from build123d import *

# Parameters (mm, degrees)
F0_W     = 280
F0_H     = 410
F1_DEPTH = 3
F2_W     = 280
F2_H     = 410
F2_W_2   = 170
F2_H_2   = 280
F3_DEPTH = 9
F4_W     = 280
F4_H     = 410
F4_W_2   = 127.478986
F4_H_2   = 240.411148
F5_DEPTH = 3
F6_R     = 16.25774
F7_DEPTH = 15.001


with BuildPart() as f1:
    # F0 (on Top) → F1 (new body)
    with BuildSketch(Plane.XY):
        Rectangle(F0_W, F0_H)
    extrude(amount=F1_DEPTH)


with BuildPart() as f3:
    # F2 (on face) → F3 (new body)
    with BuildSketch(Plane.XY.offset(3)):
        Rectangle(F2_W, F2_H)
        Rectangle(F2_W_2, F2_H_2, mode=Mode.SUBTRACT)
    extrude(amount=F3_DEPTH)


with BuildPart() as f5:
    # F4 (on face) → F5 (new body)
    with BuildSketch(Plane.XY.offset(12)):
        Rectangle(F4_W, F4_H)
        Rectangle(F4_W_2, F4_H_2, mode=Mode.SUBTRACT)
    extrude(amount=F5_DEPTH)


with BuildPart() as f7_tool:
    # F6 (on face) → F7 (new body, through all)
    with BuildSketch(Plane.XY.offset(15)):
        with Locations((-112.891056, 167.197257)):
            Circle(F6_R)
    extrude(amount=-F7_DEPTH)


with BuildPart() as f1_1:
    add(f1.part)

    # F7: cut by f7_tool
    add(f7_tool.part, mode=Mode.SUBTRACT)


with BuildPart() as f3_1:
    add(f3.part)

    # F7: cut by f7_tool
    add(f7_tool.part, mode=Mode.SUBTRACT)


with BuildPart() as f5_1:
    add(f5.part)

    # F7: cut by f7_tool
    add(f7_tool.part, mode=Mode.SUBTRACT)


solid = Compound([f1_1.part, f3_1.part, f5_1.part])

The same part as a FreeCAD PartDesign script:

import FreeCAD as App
import Part
import Sketcher
from FreeCAD import Vector
Q = App.Units.Quantity

doc = App.newDocument("Part")
body = doc.addObject("PartDesign::Body", "Body")

sketch1 = body.newObject("Sketcher::SketchObject", "Sketch")
sketch1.AttachmentSupport = (doc.getObject("XY_Plane"), [""])
sketch1.MapMode = "FlatFace"
sketch1.addGeometry(Part.LineSegment(Vector(-140, 205, 0), Vector(-140, -205, 0)), False)
sketch1.addGeometry(Part.LineSegment(Vector(-140, -205, 0), Vector(140, -205, 0)), False)
sketch1.addGeometry(Part.LineSegment(Vector(140, -205, 0), Vector(140, 205, 0)), False)
sketch1.addGeometry(Part.LineSegment(Vector(140, 205, 0), Vector(-140, 205, 0)), False)
sketch1.addConstraint(Sketcher.Constraint("Coincident", 0, 2, 1, 1))
sketch1.addConstraint(Sketcher.Constraint("Coincident", 1, 2, 2, 1))
sketch1.addConstraint(Sketcher.Constraint("Coincident", 2, 2, 3, 1))
sketch1.addConstraint(Sketcher.Constraint("Coincident", 3, 2, 0, 1))
sketch1.addConstraint(Sketcher.Constraint("Vertical", 0))
sketch1.addConstraint(Sketcher.Constraint("Horizontal", 1))
sketch1.addConstraint(Sketcher.Constraint("Vertical", 2))
sketch1.addConstraint(Sketcher.Constraint("Horizontal", 3))
sketch1.addConstraint(Sketcher.Constraint("Symmetric", 0, 2, 2, 2, -1, 1))
sketch1.addConstraint(Sketcher.Constraint("DistanceX", 1, 1, 1, 2, Q("280 mm")))
sketch1.addConstraint(Sketcher.Constraint("DistanceY", 0, 2, 0, 1, Q("410 mm")))
pad1 = body.newObject("PartDesign::Pad", "Pad")
pad1.Profile = sketch1
pad1.Length = 3
body2 = doc.addObject("PartDesign::Body", "Body001")

sketch2 = body2.newObject("Sketcher::SketchObject", "Sketch001")
sketch2.AttachmentSupport = (doc.getObject("XY_Plane001"), [""])
sketch2.MapMode = "FlatFace"
sketch2.AttachmentOffset = App.Placement(Vector(0, 0, 3), App.Rotation())
sketch2.addGeometry(Part.LineSegment(Vector(-140, 205, 0), Vector(-140, -205, 0)), False)
sketch2.addGeometry(Part.LineSegment(Vector(-140, -205, 0), Vector(140, -205, 0)), False)
sketch2.addGeometry(Part.LineSegment(Vector(140, -205, 0), Vector(140, 205, 0)), False)
sketch2.addGeometry(Part.LineSegment(Vector(140, 205, 0), Vector(-140, 205, 0)), False)
sketch2.addGeometry(Part.LineSegment(Vector(85, -140, 0), Vector(-85, -140, 0)), False)
sketch2.addGeometry(Part.LineSegment(Vector(-85, -140, 0), Vector(-85, 140, 0)), False)
sketch2.addGeometry(Part.LineSegment(Vector(-85, 140, 0), Vector(85, 140, 0)), False)
sketch2.addGeometry(Part.LineSegment(Vector(85, 140, 0), Vector(85, -140, 0)), False)
sketch2.addConstraint(Sketcher.Constraint("Coincident", 0, 2, 1, 1))
sketch2.addConstraint(Sketcher.Constraint("Coincident", 1, 2, 2, 1))
sketch2.addConstraint(Sketcher.Constraint("Coincident", 2, 2, 3, 1))
sketch2.addConstraint(Sketcher.Constraint("Coincident", 3, 2, 0, 1))
sketch2.addConstraint(Sketcher.Constraint("Coincident", 4, 2, 5, 1))
sketch2.addConstraint(Sketcher.Constraint("Coincident", 5, 2, 6, 1))
sketch2.addConstraint(Sketcher.Constraint("Coincident", 6, 2, 7, 1))
sketch2.addConstraint(Sketcher.Constraint("Coincident", 7, 2, 4, 1))
sketch2.addConstraint(Sketcher.Constraint("Vertical", 0))
sketch2.addConstraint(Sketcher.Constraint("Horizontal", 1))
sketch2.addConstraint(Sketcher.Constraint("Vertical", 2))
sketch2.addConstraint(Sketcher.Constraint("Horizontal", 3))
sketch2.addConstraint(Sketcher.Constraint("Horizontal", 4))
sketch2.addConstraint(Sketcher.Constraint("Vertical", 5))
sketch2.addConstraint(Sketcher.Constraint("Horizontal", 6))
sketch2.addConstraint(Sketcher.Constraint("Vertical", 7))
sketch2.addConstraint(Sketcher.Constraint("Symmetric", 0, 2, 2, 2, -1, 1))
sketch2.addConstraint(Sketcher.Constraint("Symmetric", 4, 2, 6, 2, -1, 1))
sketch2.addConstraint(Sketcher.Constraint("Equal", 3, 5))
sketch2.addConstraint(Sketcher.Constraint("DistanceX", 1, 1, 1, 2, Q("280 mm")))
sketch2.addConstraint(Sketcher.Constraint("DistanceX", 4, 2, 4, 1, Q("170 mm")))
sketch2.addConstraint(Sketcher.Constraint("DistanceY", 0, 2, 0, 1, Q("410 mm")))
pad2 = body2.newObject("PartDesign::Pad", "Pad001")
pad2.Profile = sketch2
pad2.Length = 9
body3 = doc.addObject("PartDesign::Body", "Body002")

sketch3 = body3.newObject("Sketcher::SketchObject", "Sketch002")
sketch3.AttachmentSupport = (doc.getObject("XY_Plane002"), [""])
sketch3.MapMode = "FlatFace"
sketch3.AttachmentOffset = App.Placement(Vector(0, 0, 12), App.Rotation())
sketch3.addGeometry(Part.LineSegment(Vector(-140, 205, 0), Vector(-140, -205, 0)), False)
sketch3.addGeometry(Part.LineSegment(Vector(-140, -205, 0), Vector(140, -205, 0)), False)
sketch3.addGeometry(Part.LineSegment(Vector(140, -205, 0), Vector(140, 205, 0)), False)
sketch3.addGeometry(Part.LineSegment(Vector(140, 205, 0), Vector(-140, 205, 0)), False)
sketch3.addGeometry(Part.LineSegment(Vector(64, -120, 0), Vector(-64, -120, 0)), False)
sketch3.addGeometry(Part.LineSegment(Vector(-64, -120, 0), Vector(-64, 120, 0)), False)
sketch3.addGeometry(Part.LineSegment(Vector(-64, 120, 0), Vector(64, 120, 0)), False)
sketch3.addGeometry(Part.LineSegment(Vector(64, 120, 0), Vector(64, -120, 0)), False)
sketch3.addConstraint(Sketcher.Constraint("Coincident", 0, 2, 1, 1))
sketch3.addConstraint(Sketcher.Constraint("Coincident", 1, 2, 2, 1))
sketch3.addConstraint(Sketcher.Constraint("Coincident", 2, 2, 3, 1))
sketch3.addConstraint(Sketcher.Constraint("Coincident", 3, 2, 0, 1))
sketch3.addConstraint(Sketcher.Constraint("Coincident", 4, 2, 5, 1))
sketch3.addConstraint(Sketcher.Constraint("Coincident", 5, 2, 6, 1))
sketch3.addConstraint(Sketcher.Constraint("Coincident", 6, 2, 7, 1))
sketch3.addConstraint(Sketcher.Constraint("Coincident", 7, 2, 4, 1))
sketch3.addConstraint(Sketcher.Constraint("Vertical", 0))
sketch3.addConstraint(Sketcher.Constraint("Horizontal", 1))
sketch3.addConstraint(Sketcher.Constraint("Vertical", 2))
sketch3.addConstraint(Sketcher.Constraint("Horizontal", 3))
sketch3.addConstraint(Sketcher.Constraint("Horizontal", 4))
sketch3.addConstraint(Sketcher.Constraint("Vertical", 5))
sketch3.addConstraint(Sketcher.Constraint("Horizontal", 6))
sketch3.addConstraint(Sketcher.Constraint("Vertical", 7))
sketch3.addConstraint(Sketcher.Constraint("Symmetric", 0, 2, 2, 2, -1, 1))
sketch3.addConstraint(Sketcher.Constraint("Symmetric", 4, 2, 6, 2, -1, 1))
sketch3.addConstraint(Sketcher.Constraint("DistanceX", 1, 1, 1, 2, Q("280 mm")))
sketch3.addConstraint(Sketcher.Constraint("DistanceY", 0, 2, 0, 1, Q("410 mm")))
sketch3.addConstraint(Sketcher.Constraint("DistanceY", 5, 1, 5, 2, Q("240.411148 mm")))
sketch3.addConstraint(Sketcher.Constraint("DistanceX", 4, 2, 4, 1, Q("127.478986 mm")))
pad3 = body3.newObject("PartDesign::Pad", "Pad002")
pad3.Profile = sketch3
pad3.Length = 3
body4 = doc.addObject("PartDesign::Body", "Body003")

sketch4 = body4.newObject("Sketcher::SketchObject", "Sketch003")
sketch4.AttachmentSupport = (doc.getObject("XY_Plane003"), [""])
sketch4.MapMode = "FlatFace"
sketch4.AttachmentOffset = App.Placement(Vector(0, 0, 15), App.Rotation())
sketch4.addGeometry(Part.Circle(Vector(-113, 167, 0), Vector(0, 0, 1), 16), False)
sketch4.addConstraint(Sketcher.Constraint("Diameter", 0, Q("32.51548 mm")))
sketch4.addConstraint(Sketcher.Constraint("DistanceX", 0, 3, -1, 1, Q("112.891056 mm")))
sketch4.addConstraint(Sketcher.Constraint("DistanceY", -1, 1, 0, 3, Q("167.197257 mm")))
pad4 = body4.newObject("PartDesign::Pad", "Pad003")
pad4.Profile = sketch4
pad4.Length = 15.001
pad4.Reversed = True
doc.recompute()

body5 = doc.addObject("PartDesign::Body", "Body004")
body5.BaseFeature = body4
boolean = body.newObject("PartDesign::Boolean", "Boolean")
boolean.Type = "Cut"
boolean.addObjects([body5])
doc.recompute()

body6 = doc.addObject("PartDesign::Body", "Body005")
body6.BaseFeature = body4
boolean2 = body2.newObject("PartDesign::Boolean", "Boolean001")
boolean2.Type = "Cut"
boolean2.addObjects([body6])
doc.recompute()

boolean3 = body3.newObject("PartDesign::Boolean", "Boolean002")
boolean3.Type = "Cut"
boolean3.addObjects([body4])

doc.recompute()
